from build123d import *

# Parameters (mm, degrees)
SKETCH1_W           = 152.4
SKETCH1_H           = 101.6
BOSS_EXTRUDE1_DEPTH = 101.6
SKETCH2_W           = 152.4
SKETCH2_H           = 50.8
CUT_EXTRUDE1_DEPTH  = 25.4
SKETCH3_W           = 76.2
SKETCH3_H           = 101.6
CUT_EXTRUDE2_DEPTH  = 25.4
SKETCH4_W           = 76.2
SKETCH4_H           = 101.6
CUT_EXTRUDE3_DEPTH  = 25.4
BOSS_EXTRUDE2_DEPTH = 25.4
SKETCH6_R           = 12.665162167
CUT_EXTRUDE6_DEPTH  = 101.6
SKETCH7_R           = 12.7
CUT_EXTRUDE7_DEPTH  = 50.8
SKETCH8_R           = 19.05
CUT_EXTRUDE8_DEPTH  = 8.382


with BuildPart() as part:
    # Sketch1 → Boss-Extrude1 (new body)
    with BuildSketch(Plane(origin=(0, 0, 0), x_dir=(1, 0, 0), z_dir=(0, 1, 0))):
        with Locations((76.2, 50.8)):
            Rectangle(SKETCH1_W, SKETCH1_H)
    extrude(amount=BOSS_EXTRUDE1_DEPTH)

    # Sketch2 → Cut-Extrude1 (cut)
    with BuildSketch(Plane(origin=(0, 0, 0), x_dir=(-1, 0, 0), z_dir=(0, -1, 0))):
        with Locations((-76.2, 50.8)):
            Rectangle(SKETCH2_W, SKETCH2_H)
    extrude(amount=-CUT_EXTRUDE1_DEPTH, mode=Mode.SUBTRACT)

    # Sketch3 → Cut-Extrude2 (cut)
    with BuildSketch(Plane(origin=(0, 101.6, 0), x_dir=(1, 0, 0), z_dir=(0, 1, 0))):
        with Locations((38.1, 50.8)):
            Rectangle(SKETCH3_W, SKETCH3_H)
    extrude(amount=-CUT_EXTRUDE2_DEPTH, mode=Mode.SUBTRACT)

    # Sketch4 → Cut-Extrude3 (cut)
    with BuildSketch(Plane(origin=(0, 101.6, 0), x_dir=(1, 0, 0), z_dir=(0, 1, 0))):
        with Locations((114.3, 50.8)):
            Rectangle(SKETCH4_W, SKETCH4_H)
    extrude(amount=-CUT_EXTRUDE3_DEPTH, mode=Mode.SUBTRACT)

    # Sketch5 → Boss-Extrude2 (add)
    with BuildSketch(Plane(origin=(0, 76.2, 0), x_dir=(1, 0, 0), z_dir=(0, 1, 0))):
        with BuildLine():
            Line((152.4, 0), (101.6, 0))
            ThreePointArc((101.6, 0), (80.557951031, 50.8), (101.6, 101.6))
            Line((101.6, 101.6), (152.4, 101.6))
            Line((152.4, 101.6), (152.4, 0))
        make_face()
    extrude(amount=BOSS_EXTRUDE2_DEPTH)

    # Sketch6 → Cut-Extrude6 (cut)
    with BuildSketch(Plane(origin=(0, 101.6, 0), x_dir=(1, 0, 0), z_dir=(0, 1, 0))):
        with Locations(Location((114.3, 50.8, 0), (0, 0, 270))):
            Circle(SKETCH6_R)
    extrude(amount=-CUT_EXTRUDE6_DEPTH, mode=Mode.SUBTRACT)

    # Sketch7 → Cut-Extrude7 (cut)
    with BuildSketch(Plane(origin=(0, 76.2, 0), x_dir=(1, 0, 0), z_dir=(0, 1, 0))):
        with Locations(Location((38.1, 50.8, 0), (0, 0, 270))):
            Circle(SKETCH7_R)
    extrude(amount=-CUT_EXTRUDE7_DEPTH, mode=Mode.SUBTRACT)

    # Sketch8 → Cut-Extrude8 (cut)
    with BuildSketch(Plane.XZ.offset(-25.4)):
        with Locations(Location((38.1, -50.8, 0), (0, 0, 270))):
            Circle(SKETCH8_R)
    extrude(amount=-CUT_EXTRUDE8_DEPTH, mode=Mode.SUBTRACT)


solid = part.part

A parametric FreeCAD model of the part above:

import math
import FreeCAD as App
import Part
import Sketcher
from FreeCAD import Vector
Q = App.Units.Quantity


def add_polygon(sketch, points):
    """Adds a closed chain of lines whose ends are joined by coincident constraints."""
    first, n = sketch.GeometryCount, len(points)
    for a, b in zip(points, points[1:] + points[:1]):
        sketch.addGeometry(Part.LineSegment(App.Vector(*a, 0), App.Vector(*b, 0)), False)
    for i in range(n):
        sketch.addConstraint(Sketcher.Constraint("Coincident", first + i, 2, first + (i + 1) % n, 1))

doc = App.newDocument("Part")
params = doc.addObject("Spreadsheet::Sheet", "Params")
for row, (alias, value) in enumerate([
    ("sketch1_width", "6 in"),
    ("sketch1_height", "4 in"),
    ("pad1_length", "4 in"),
    ("sketch2_width", "6 in"),
    ("sketch2_height", "2 in"),
    ("pocket1_length", "1 in"),
    ("sketch3_width", "3 in"),
    ("sketch3_height", "4 in"),
    ("pocket2_length", "1 in"),
    ("sketch4_width", "3 in"),
    ("sketch4_height", "4 in"),
    ("pocket3_length", "1 in"),
    ("sketch5_width", "2 in"),
    ("sketch5_height", "4 in"),
    ("pad2_length", "1 in"),
    ("pocket4_length", "4 in"),
    ("sketch7_diameter", "1 in"),
    ("pocket5_length", "2 in"),
    ("sketch8_diameter", "1.5 in"),
    ("pocket6_length", "0.33 in"),
], start=1):
    params.set(f"A{row}", alias)
    params.set(f"B{row}", "=" + value)
    params.setAlias(f"B{row}", alias)

body = doc.addObject("PartDesign::Body", "Body")

# Sketch on XZ plane
sketch1 = body.newObject("Sketcher::SketchObject", "Sketch")
sketch1.AttachmentSupport = (doc.getObject("XZ_Plane"), [""])
sketch1.MapMode = "FlatFace"
add_polygon(sketch1, [(0, -102), (0, 0), (152, 0), (152, -102)])  # lines 0-3
sketch1.addConstraint(Sketcher.Constraint("Vertical", 0))
sketch1.addConstraint(Sketcher.Constraint("Horizontal", 1))
sketch1.addConstraint(Sketcher.Constraint("Vertical", 2))
sketch1.addConstraint(Sketcher.Constraint("Horizontal", 3))
sketch1.addConstraint(Sketcher.Constraint("Coincident", 0, 2, -1, 1))
sketch1.addConstraint(Sketcher.Constraint("DistanceX", 1, 1, 1, 2, Q("6 in")))
sketch1.addConstraint(Sketcher.Constraint("DistanceY", 0, 1, 0, 2, Q("4 in")))
sketch1.setExpression("Constraints[9]", "Params.sketch1_width")
sketch1.setExpression("Constraints[10]", "Params.sketch1_height")
pad1 = body.newObject("PartDesign::Pad", "Pad")
pad1.Profile = sketch1
pad1.setExpression("Length", "Params.pad1_length")
pad1.Reversed = True

# Sketch on XZ plane
sketch2 = body.newObject("Sketcher::SketchObject", "Sketch001")
sketch2.AttachmentSupport = (doc.getObject("XZ_Plane"), [""])
sketch2.MapMode = "FlatFace"
add_polygon(sketch2, [(152, -76), (152, -25), (0, -25), (0, -76)])  # lines 0-3
sketch2.addConstraint(Sketcher.Constraint("Vertical", 0))
sketch2.addConstraint(Sketcher.Constraint("Horizontal", 1))
sketch2.addConstraint(Sketcher.Constraint("Vertical", 2))
sketch2.addConstraint(Sketcher.Constraint("Horizontal", 3))
sketch2.addConstraint(Sketcher.Constraint("PointOnObject", 1, 2, -2))
sketch2.addConstraint(Sketcher.Constraint("DistanceX", 1, 2, 1, 1, Q("6 in")))
sketch2.addConstraint(Sketcher.Constraint("DistanceY", 0, 1, 0, 2, Q("2 in")))
sketch2.addConstraint(Sketcher.Constraint("DistanceY", 0, 2, -1, 1, Q("1 in")))
sketch2.setExpression("Constraints[9]", "Params.sketch2_width")
sketch2.setExpression("Constraints[10]", "Params.sketch2_height")
pocket1 = body.newObject("PartDesign::Pocket", "Pocket")
pocket1.Profile = sketch2
pocket1.setExpression("Length", "Params.pocket1_length")

# Sketch on XZ plane
sketch3 = body.newObject("Sketcher::SketchObject", "Sketch002")
sketch3.AttachmentSupport = (doc.getObject("XZ_Plane"), [""])
sketch3.MapMode = "FlatFace"
sketch3.AttachmentOffset = App.Placement(Vector(0, 0, -4 * 25.4), App.Rotation())
add_polygon(sketch3, [(0, -102), (0, 0), (76, 0), (76, -102)])  # lines 0-3
sketch3.addConstraint(Sketcher.Constraint("Vertical", 0))
sketch3.addConstraint(Sketcher.Constraint("Horizontal", 1))
sketch3.addConstraint(Sketcher.Constraint("Vertical", 2))
sketch3.addConstraint(Sketcher.Constraint("Horizontal", 3))
sketch3.addConstraint(Sketcher.Constraint("Coincident", 0, 2, -1, 1))
sketch3.addConstraint(Sketcher.Constraint("DistanceX", 1, 1, 1, 2, Q("3 in")))
sketch3.addConstraint(Sketcher.Constraint("DistanceY", 0, 1, 0, 2, Q("4 in")))
sketch3.setExpression("Constraints[9]", "Params.sketch3_width")
sketch3.setExpression("Constraints[10]", "Params.sketch3_height")
pocket2 = body.newObject("PartDesign::Pocket", "Pocket001")
pocket2.Profile = sketch3
pocket2.setExpression("Length", "Params.pocket2_length")
pocket2.Reversed = True

# Sketch on XZ plane
sketch4 = body.newObject("Sketcher::SketchObject", "Sketch003")
sketch4.AttachmentSupport = (doc.getObject("XZ_Plane"), [""])
sketch4.MapMode = "FlatFace"
sketch4.AttachmentOffset = App.Placement(Vector(0, 0, -4 * 25.4), App.Rotation())
add_polygon(sketch4, [(76, -102), (76, 0), (152, 0), (152, -102)])  # lines 0-3
sketch4.addConstraint(Sketcher.Constraint("Vertical", 0))
sketch4.addConstraint(Sketcher.Constraint("Horizontal", 1))
sketch4.addConstraint(Sketcher.Constraint("Vertical", 2))
sketch4.addConstraint(Sketcher.Constraint("Horizontal", 3))
sketch4.addConstraint(Sketcher.Constraint("PointOnObject", 0, 2, -1))
sketch4.addConstraint(Sketcher.Constraint("DistanceX", 1, 1, 1, 2, Q("3 in")))
sketch4.addConstraint(Sketcher.Constraint("DistanceY", 0, 1, 0, 2, Q("4 in")))
sketch4.addConstraint(Sketcher.Constraint("DistanceX", -1, 1, 0, 2, Q("3 in")))
sketch4.setExpression("Constraints[9]", "Params.sketch4_width")
sketch4.setExpression("Constraints[10]", "Params.sketch4_height")
pocket3 = body.newObject("PartDesign::Pocket", "Pocket002")
pocket3.Profile = sketch4
pocket3.setExpression("Length", "Params.pocket3_length")
pocket3.Reversed = True

# Sketch on XZ plane
sketch5 = body.newObject("Sketcher::SketchObject", "Sketch004")
sketch5.AttachmentSupport = (doc.getObject("XZ_Plane"), [""])
sketch5.MapMode = "FlatFace"
sketch5.AttachmentOffset = App.Placement(Vector(0, 0, -3 * 25.4), App.Rotation())
sketch5.addGeometry(Part.LineSegment(Vector(102, 0, 0), Vector(152, 0, 0)), False)
sketch5.addGeometry(Part.LineSegment(Vector(152, 0, 0), Vector(152, -102, 0)), False)
sketch5.addGeometry(Part.LineSegment(Vector(152, -102, 0), Vector(102, -102, 0)), False)
sketch5.addGeometry(Part.ArcOfCircle(Part.Circle(Vector(152, -51, 0), Vector(0, 0, 1), 72), math.radians(135), math.radians(225)), False)
sketch5.addConstraint(Sketcher.Constraint("Coincident", 0, 2, 1, 1))
sketch5.addConstraint(Sketcher.Constraint("Coincident", 1, 2, 2, 1))
sketch5.addConstraint(Sketcher.Constraint("Coincident", 2, 2, 3, 2))
sketch5.addConstraint(Sketcher.Constraint("Coincident", 3, 1, 0, 1))
sketch5.addConstraint(Sketcher.Constraint("Horizontal", 0))
sketch5.addConstraint(Sketcher.Constraint("Vertical", 1))
sketch5.addConstraint(Sketcher.Constraint("Horizontal", 2))
sketch5.addConstraint(Sketcher.Constraint("PointOnObject", 0, 2, -1))
sketch5.addConstraint(Sketcher.Constraint("Vertical", 3, 3, 0, 2))
sketch5.addConstraint(Sketcher.Constraint("Vertical", 2, 2, 3, 1))
sketch5.addConstraint(Sketcher.Constraint("DistanceX", 0, 1, 0, 2, Q("2 in")))
sketch5.addConstraint(Sketcher.Constraint("DistanceY", 1, 2, 1, 1, Q("4 in")))
sketch5.addConstraint(Sketcher.Constraint("DistanceX", -1, 1, 3, 3, Q("6 in")))
sketch5.setExpression("Constraints[10]", "Params.sketch5_width")
sketch5.setExpression("Constraints[11]", "Params.sketch5_height")
pad2 = body.newObject("PartDesign::Pad", "Pad001")
pad2.Profile = sketch5
pad2.setExpression("Length", "Params.pad2_length")
pad2.Reversed = True

# Sketch on XZ plane
sketch6 = body.newObject("Sketcher::SketchObject", "Sketch005")
sketch6.AttachmentSupport = (doc.getObject("XZ_Plane"), [""])
sketch6.MapMode = "FlatFace"
sketch6.AttachmentOffset = App.Placement(Vector(0, 0, -4 * 25.4), App.Rotation())
sketch6.addGeometry(Part.Circle(Vector(114, -51, 0), Vector(0, 0, 1), 13), False)
sketch6.addConstraint(Sketcher.Constraint("DistanceY", 0, 3, -1, 1, Q("2 in")))
sketch6.addConstraint(Sketcher.Constraint("DistanceX", -1, 1, 0, 3, Q("4.5 in")))
sketch6.addConstraint(Sketcher.Constraint("Diameter", 0, 25.330324))
pocket4 = body.newObject("PartDesign::Pocket", "Pocket003")
pocket4.Profile = sketch6
pocket4.setExpression("Length", "Params.pocket4_length")
pocket4.Reversed = True

# Sketch on XZ plane
sketch7 = body.newObject("Sketcher::SketchObject", "Sketch006")
sketch7.AttachmentSupport = (doc.getObject("XZ_Plane"), [""])
sketch7.MapMode = "FlatFace"
sketch7.AttachmentOffset = App.Placement(Vector(0, 0, -3 * 25.4), App.Rotation())
sketch7.addGeometry(Part.Circle(Vector(38, -51, 0), Vector(0, 0, 1), 13), False)
sketch7.addConstraint(Sketcher.Constraint("Diameter", 0, Q("1 in")))
sketch7.addConstraint(Sketcher.Constraint("DistanceY", 0, 3, -1, 1, Q("2 in")))
sketch7.addConstraint(Sketcher.Constraint("DistanceX", -1, 1, 0, 3, Q("1.5 in")))
sketch7.setExpression("Constraints[0]", "Params.sketch7_diameter")
pocket5 = body.newObject("PartDesign::Pocket", "Pocket004")
pocket5.Profile = sketch7
pocket5.setExpression("Length", "Params.pocket5_length")
pocket5.Reversed = True

# Sketch on XZ plane
sketch8 = body.newObject("Sketcher::SketchObject", "Sketch007")
sketch8.AttachmentSupport = (doc.getObject("XZ_Plane"), [""])
sketch8.MapMode = "FlatFace"
sketch8.AttachmentOffset = App.Placement(Vector(0, 0, -1 * 25.4), App.Rotation())
sketch8.addGeometry(Part.Circle(Vector(38, -51, 0), Vector(0, 0, 1), 19), False)
sketch8.addConstraint(Sketcher.Constraint("Diameter", 0, Q("1.5 in")))
sketch8.addConstraint(Sketcher.Constraint("DistanceY", 0, 3, -1, 1, Q("2 in")))
sketch8.addConstraint(Sketcher.Constraint("DistanceX", -1, 1, 0, 3, Q("1.5 in")))
sketch8.setExpression("Constraints[0]", "Params.sketch8_diameter")
pocket6 = body.newObject("PartDesign::Pocket", "Pocket005")
pocket6.Profile = sketch8
pocket6.setExpression("Length", "Params.pocket6_length")

doc.recompute()
